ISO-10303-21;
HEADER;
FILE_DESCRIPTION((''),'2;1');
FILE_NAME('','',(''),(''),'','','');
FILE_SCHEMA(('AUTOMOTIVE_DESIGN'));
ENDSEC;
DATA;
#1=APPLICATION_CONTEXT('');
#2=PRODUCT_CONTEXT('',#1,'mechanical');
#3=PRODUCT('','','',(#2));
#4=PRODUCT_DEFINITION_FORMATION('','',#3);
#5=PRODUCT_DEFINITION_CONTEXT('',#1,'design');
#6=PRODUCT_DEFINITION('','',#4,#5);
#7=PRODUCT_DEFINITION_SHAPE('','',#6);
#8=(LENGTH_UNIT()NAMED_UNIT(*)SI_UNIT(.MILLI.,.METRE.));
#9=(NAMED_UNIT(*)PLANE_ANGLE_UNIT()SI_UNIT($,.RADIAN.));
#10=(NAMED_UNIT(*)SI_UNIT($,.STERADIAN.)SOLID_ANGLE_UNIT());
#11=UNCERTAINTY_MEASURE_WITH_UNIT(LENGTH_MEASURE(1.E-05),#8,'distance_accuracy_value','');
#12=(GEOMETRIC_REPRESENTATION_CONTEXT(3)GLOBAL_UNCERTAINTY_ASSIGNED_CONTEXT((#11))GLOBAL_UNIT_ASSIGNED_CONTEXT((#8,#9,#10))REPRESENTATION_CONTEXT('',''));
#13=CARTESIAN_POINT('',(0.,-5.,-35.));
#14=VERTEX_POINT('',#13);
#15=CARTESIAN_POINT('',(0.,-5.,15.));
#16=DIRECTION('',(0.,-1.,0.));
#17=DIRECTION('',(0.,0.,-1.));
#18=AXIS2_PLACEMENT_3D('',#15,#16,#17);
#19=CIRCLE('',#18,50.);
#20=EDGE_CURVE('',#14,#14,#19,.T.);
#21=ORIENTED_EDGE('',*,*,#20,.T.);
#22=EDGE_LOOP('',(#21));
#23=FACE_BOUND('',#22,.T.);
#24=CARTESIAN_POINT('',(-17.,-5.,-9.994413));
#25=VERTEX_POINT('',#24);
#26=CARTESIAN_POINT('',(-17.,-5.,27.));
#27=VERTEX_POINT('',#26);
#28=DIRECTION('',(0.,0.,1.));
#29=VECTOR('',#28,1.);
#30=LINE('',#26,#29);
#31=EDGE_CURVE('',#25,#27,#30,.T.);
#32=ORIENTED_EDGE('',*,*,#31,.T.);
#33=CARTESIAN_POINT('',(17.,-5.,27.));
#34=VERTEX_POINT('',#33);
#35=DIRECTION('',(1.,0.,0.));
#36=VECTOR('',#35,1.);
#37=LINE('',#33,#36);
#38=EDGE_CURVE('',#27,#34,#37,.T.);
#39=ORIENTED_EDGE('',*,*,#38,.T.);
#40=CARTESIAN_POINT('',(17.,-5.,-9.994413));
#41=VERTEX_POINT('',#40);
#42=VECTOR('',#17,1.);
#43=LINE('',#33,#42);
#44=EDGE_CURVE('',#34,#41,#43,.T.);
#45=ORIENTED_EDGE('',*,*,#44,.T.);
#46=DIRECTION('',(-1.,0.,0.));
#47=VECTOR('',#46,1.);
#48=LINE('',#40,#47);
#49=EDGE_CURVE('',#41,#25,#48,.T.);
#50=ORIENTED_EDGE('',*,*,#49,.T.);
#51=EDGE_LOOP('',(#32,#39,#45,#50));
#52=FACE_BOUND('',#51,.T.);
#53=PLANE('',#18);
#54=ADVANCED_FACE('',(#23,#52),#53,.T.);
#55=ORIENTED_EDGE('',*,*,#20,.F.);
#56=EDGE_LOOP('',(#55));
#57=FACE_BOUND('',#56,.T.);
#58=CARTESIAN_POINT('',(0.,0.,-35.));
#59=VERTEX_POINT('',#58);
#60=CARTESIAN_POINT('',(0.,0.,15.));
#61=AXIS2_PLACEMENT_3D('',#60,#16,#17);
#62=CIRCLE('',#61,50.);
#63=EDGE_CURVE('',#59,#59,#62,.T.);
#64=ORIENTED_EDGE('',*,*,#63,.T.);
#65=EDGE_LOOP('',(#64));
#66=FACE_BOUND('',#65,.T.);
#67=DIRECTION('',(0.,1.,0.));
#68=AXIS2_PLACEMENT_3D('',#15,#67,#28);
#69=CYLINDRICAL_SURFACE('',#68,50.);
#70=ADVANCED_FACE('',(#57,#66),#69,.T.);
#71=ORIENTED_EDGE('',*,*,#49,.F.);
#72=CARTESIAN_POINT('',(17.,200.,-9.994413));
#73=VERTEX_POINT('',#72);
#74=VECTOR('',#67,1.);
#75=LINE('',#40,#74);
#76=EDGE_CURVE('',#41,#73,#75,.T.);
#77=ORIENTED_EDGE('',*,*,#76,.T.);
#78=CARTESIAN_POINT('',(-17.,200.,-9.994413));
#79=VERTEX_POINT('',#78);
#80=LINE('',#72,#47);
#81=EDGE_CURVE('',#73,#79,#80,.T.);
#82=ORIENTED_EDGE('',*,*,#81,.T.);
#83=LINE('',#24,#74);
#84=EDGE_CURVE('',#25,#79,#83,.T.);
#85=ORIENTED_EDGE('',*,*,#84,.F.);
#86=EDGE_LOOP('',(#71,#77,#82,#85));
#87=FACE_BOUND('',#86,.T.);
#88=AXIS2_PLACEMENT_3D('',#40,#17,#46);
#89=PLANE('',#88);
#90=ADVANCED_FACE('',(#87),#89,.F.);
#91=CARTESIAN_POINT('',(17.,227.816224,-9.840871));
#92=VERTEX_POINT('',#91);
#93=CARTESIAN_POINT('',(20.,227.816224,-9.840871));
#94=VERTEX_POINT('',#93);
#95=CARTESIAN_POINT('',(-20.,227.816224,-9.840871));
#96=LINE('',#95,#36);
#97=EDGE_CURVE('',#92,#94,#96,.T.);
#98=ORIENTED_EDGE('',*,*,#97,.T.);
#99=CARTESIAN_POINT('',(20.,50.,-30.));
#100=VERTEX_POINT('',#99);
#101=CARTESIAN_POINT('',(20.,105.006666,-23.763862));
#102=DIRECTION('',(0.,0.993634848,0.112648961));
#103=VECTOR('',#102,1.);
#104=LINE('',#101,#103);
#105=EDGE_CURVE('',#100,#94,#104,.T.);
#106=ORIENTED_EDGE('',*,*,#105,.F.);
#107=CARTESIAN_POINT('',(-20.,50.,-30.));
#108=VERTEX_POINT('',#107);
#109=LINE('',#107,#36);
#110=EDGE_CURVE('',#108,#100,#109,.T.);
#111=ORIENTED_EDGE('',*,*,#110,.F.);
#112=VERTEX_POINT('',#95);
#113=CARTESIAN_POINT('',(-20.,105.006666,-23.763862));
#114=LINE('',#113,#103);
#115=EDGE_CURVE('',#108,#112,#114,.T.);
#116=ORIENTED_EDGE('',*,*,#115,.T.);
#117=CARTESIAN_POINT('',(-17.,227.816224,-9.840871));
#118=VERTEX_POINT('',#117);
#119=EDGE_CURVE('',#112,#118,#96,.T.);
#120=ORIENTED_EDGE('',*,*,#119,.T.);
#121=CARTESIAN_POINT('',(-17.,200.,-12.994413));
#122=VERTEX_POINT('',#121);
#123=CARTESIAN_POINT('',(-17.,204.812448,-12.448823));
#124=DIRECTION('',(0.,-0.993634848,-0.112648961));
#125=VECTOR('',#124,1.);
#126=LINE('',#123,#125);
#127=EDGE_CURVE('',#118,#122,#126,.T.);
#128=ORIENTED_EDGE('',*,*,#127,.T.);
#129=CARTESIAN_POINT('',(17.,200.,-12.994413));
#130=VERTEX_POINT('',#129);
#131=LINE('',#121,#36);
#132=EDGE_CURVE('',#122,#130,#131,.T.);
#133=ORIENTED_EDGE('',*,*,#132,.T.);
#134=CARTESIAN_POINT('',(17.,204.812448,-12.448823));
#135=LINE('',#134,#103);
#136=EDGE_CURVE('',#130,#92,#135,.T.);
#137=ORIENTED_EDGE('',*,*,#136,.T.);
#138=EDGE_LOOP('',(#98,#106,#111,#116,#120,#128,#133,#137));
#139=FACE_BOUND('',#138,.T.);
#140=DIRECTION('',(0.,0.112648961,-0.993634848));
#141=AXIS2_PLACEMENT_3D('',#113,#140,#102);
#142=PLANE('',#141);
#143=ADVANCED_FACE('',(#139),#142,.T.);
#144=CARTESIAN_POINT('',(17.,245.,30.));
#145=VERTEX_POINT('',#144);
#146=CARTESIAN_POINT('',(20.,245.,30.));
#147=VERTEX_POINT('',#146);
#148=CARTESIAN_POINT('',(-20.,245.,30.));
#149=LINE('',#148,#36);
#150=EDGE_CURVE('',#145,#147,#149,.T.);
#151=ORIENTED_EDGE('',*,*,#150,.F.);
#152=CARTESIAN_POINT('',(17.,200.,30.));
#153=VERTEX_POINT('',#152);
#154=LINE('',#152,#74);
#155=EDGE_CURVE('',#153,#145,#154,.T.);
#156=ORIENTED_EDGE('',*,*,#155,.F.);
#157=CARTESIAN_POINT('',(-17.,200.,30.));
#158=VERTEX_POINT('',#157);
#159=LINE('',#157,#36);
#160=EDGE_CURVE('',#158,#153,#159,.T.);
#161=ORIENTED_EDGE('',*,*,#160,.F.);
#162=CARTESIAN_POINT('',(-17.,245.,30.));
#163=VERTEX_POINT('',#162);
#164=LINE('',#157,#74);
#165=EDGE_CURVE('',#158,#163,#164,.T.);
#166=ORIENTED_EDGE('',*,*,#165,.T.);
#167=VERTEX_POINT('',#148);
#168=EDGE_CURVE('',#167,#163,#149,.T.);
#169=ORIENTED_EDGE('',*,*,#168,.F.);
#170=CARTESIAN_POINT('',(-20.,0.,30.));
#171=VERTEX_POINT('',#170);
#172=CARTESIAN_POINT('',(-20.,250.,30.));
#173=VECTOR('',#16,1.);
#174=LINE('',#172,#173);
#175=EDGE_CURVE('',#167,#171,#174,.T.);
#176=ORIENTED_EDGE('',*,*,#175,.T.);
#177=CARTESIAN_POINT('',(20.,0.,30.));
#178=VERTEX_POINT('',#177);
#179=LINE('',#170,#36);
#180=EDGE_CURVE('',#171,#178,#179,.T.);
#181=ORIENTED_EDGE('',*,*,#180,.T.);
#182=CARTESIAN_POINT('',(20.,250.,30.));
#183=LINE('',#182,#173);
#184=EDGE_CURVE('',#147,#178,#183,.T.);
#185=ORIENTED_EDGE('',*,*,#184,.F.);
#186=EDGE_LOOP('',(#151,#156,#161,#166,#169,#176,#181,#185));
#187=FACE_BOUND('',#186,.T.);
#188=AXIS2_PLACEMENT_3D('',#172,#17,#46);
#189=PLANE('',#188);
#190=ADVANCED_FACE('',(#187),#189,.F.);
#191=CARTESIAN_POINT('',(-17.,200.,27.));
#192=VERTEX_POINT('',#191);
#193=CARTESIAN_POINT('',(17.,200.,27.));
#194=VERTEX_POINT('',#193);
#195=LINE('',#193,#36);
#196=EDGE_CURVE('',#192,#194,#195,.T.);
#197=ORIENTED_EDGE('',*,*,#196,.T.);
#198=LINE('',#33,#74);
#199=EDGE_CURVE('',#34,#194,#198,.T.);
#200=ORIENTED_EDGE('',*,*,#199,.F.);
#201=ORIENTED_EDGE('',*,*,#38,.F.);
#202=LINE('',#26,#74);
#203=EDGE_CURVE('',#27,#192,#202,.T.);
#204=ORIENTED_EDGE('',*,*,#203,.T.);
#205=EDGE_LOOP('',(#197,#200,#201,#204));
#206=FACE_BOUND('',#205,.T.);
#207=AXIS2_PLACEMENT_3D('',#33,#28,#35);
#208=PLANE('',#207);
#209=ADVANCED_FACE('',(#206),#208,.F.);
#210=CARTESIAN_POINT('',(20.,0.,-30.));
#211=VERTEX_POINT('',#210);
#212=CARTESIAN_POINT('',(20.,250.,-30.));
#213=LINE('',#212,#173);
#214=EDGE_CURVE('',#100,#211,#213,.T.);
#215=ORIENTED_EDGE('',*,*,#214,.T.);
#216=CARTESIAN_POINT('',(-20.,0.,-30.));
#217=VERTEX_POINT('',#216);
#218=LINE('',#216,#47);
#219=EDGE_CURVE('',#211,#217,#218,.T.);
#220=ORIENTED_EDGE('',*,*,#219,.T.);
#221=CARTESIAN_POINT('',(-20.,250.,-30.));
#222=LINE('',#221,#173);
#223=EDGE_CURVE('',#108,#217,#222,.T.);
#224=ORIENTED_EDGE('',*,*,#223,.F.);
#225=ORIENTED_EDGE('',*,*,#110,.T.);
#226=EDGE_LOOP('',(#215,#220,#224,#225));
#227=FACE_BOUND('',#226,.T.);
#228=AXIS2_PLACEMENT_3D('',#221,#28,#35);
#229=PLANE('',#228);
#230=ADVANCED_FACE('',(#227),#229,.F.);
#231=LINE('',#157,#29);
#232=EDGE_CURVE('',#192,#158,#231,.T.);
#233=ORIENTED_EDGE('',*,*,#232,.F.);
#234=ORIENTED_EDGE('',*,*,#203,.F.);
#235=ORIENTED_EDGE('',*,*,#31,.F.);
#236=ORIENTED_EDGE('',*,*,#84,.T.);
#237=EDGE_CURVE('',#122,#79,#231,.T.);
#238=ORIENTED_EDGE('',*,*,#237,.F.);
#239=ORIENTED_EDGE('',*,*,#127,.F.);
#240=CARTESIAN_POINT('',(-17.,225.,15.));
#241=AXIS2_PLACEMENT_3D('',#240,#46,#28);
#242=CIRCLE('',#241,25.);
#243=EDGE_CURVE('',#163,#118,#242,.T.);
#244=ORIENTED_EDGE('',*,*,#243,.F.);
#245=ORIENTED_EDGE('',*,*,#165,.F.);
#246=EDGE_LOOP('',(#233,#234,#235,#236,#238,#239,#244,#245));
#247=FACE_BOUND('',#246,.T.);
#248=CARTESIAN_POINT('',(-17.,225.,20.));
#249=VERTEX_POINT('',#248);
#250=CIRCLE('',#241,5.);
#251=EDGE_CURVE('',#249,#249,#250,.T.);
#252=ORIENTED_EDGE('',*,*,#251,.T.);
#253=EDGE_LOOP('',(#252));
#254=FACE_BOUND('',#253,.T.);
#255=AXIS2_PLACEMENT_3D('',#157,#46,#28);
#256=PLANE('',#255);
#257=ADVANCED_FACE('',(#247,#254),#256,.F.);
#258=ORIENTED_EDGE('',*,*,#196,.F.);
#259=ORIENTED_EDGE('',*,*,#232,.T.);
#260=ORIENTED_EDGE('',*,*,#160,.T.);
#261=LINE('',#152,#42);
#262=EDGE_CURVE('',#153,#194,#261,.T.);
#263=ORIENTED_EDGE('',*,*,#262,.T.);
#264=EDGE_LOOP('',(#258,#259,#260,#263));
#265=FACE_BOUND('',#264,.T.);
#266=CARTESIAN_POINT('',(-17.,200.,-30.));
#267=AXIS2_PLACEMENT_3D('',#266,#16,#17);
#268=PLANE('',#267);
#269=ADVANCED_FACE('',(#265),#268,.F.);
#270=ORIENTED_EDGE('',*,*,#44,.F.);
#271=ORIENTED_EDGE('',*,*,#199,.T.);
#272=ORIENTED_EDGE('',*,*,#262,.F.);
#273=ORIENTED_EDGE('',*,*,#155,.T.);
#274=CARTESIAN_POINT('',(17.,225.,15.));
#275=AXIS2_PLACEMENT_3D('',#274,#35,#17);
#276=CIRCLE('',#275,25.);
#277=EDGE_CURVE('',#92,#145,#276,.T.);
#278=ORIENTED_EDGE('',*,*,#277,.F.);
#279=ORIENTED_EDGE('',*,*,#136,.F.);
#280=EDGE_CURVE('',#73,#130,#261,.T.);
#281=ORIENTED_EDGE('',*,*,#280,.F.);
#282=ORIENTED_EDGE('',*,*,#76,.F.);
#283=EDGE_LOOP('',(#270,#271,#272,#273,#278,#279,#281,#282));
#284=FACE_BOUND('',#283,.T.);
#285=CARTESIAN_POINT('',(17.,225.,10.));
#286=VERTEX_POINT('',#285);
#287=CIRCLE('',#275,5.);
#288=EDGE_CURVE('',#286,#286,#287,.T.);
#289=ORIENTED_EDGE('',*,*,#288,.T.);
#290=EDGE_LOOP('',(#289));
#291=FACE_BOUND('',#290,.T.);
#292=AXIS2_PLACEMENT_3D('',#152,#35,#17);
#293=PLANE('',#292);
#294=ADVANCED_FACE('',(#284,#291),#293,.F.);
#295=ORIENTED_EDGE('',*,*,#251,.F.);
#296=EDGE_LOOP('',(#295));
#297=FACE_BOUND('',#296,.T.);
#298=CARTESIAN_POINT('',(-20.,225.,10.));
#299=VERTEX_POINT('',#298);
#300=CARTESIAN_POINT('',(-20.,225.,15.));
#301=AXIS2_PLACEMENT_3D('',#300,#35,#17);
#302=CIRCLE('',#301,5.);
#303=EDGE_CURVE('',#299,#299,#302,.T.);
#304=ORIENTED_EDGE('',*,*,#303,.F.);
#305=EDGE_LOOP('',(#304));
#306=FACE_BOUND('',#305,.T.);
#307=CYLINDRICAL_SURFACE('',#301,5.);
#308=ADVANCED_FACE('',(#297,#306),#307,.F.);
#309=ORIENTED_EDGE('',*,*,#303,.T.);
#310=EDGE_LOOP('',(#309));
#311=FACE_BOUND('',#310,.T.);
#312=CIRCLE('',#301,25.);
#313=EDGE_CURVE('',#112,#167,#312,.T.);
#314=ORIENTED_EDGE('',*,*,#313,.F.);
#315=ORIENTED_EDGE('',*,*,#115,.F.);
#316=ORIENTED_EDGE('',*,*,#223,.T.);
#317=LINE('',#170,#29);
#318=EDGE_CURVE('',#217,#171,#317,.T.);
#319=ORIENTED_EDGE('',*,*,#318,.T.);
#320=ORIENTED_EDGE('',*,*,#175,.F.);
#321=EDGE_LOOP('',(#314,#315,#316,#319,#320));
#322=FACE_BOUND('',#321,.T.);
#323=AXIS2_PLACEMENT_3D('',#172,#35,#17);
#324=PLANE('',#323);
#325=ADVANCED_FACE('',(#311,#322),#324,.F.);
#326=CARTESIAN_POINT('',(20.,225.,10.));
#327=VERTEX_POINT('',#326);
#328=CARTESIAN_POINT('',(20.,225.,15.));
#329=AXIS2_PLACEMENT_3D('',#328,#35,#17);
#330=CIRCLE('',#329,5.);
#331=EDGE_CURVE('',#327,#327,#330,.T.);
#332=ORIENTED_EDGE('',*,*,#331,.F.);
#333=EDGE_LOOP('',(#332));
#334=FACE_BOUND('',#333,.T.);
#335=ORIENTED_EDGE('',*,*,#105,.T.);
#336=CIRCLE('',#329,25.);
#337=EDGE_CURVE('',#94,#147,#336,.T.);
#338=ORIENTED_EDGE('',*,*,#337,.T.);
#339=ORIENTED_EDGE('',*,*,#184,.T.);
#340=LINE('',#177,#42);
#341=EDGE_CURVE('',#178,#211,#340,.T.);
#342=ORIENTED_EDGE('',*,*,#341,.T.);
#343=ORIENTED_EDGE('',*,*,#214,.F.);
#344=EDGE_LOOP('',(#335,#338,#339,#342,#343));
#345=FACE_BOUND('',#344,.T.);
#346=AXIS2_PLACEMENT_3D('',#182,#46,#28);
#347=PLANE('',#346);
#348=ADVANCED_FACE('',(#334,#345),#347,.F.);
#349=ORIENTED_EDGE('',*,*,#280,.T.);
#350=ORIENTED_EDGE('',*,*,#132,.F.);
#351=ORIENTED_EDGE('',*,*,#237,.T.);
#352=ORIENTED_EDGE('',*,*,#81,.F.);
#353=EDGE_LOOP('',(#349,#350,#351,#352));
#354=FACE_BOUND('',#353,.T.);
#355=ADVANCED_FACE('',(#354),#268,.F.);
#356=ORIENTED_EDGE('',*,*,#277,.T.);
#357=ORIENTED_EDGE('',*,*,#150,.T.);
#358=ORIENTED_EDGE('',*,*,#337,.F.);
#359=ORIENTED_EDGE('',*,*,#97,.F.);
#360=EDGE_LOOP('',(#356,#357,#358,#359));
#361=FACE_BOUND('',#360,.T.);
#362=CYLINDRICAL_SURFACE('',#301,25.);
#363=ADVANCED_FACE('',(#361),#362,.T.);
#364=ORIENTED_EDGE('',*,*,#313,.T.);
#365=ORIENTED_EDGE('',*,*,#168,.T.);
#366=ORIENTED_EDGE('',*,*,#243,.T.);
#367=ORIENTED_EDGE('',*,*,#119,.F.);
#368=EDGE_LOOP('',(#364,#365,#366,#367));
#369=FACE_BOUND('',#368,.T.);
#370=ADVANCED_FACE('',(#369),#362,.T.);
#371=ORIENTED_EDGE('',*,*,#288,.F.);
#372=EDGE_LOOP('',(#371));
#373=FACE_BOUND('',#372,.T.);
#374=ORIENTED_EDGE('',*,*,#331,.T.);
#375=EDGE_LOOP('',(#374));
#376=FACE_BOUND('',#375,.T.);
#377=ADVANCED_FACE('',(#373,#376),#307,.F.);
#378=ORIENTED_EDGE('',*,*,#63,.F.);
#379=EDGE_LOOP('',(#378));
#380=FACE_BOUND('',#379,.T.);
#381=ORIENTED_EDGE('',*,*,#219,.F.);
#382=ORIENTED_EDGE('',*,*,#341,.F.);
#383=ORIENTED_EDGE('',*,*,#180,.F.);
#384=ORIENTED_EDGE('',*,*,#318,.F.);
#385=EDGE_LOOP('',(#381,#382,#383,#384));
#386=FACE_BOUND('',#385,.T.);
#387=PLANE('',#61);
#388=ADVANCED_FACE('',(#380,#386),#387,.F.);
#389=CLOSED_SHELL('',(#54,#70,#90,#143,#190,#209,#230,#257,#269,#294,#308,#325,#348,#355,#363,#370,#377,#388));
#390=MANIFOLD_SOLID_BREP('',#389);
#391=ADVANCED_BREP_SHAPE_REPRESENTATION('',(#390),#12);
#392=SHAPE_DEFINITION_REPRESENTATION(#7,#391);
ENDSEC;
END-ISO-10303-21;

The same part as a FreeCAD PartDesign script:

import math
import FreeCAD as App
import Part
import Sketcher

V = App.Vector
Q = App.Units.Quantity


def add_polygon(sketch, points):
    """Adds a closed chain of lines whose ends are joined by coincident constraints."""
    first, n = sketch.GeometryCount, len(points)
    for a, b in zip(points, points[1:] + points[:1]):
        sketch.addGeometry(Part.LineSegment(App.Vector(*a, 0), App.Vector(*b, 0)), False)
    for i in range(n):
        sketch.addConstraint(Sketcher.Constraint("Coincident", first + i, 2, first + (i + 1) % n, 1))

doc = App.newDocument("Part")
params = doc.addObject("Spreadsheet::Sheet", "Params")
for row, (alias, value) in enumerate([
    ("sketch1_width", "40 mm"),
    ("sketch1_height", "60 mm"),
    ("pad1_length", "250 mm"),
    ("sketch2_width", "34 mm"),
    ("sketch2_height", "60 mm"),
    ("pocket1_length", "50 mm"),
    ("sketch3_diameter", "10 mm"),
    ("sketch4_radius", "25 mm"),
    ("sketch4_width", "200 mm"),
    ("sketch4_width2", "5 mm"),
    ("sketch4_height", "45 mm"),
    ("sketch5_diameter", "100 mm"),
    ("pad2_length", "5 mm"),
    ("sketch6_width", "34 mm"),
], start=1):
    params.set(f"A{row}", alias)
    params.set(f"B{row}", "=" + value)
    params.setAlias(f"B{row}", alias)

body = doc.addObject("PartDesign::Body", "Body")

sketch1 = body.newObject("Sketcher::SketchObject", "Sketch")
sketch1.AttachmentSupport = (doc.getObject("XZ_Plane"), [""])
sketch1.MapMode = "FlatFace"
add_polygon(sketch1, [(-20, -30), (-20, 30), (20, 30), (20, -30)])
sketch1.addConstraint([
    Sketcher.Constraint("Vertical", 0),
    Sketcher.Constraint("Horizontal", 1),
    Sketcher.Constraint("Vertical", 2),
    Sketcher.Constraint("Horizontal", 3),
    Sketcher.Constraint("Symmetric", 0, 2, 2, 2, -1, 1),
    Sketcher.Constraint("DistanceX", 1, 1, 1, 2, Q("40 mm")),
    Sketcher.Constraint("DistanceY", 0, 1, 0, 2, Q("60 mm")),
])
sketch1.setExpression("Constraints[9]", "Params.sketch1_width")
sketch1.setExpression("Constraints[10]", "Params.sketch1_height")
pad1 = body.newObject("PartDesign::Pad", "Pad")
pad1.Profile = sketch1
pad1.setExpression("Length", "Params.pad1_length")
pad1.Reversed = True

sketch2 = body.newObject("Sketcher::SketchObject", "Sketch001")
sketch2.AttachmentSupport = (doc.getObject("XZ_Plane"), [""])
sketch2.MapMode = "FlatFace"
sketch2.AttachmentOffset = App.Placement(V(0, 0, -250), App.Rotation())
add_polygon(sketch2, [(-17, -30), (-17, 30), (17, 30), (17, -30)])
sketch2.addConstraint([
    Sketcher.Constraint("Vertical", 0),
    Sketcher.Constraint("Horizontal", 1),
    Sketcher.Constraint("Vertical", 2),
    Sketcher.Constraint("Horizontal", 3),
    Sketcher.Constraint("Symmetric", 0, 2, 2, 2, -1, 1),
    Sketcher.Constraint("DistanceX", 1, 1, 1, 2, Q("34 mm")),
    Sketcher.Constraint("DistanceY", 0, 1, 0, 2, Q("60 mm")),
])
sketch2.setExpression("Constraints[9]", "Params.sketch2_width")
sketch2.setExpression("Constraints[10]", "Params.sketch2_height")
pocket1 = body.newObject("PartDesign::Pocket", "Pocket")
pocket1.Profile = sketch2
pocket1.setExpression("Length", "Params.pocket1_length")
pocket1.Reversed = True

sketch3 = body.newObject("Sketcher::SketchObject", "Sketch002")
sketch3.AttachmentSupport = (doc.getObject("YZ_Plane"), [""])
sketch3.MapMode = "FlatFace"
sketch3.AttachmentOffset = App.Placement(V(0, 0, 20), App.Rotation())
sketch3.addGeometry(Part.Circle(V(225, 15, 0), V(0, 0, 1), 5), False)
sketch3.addConstraint([
    Sketcher.Constraint("Diameter", 0, Q("10 mm")),
    Sketcher.Constraint("DistanceX", -1, 1, 0, 3, Q("225 mm")),
    Sketcher.Constraint("DistanceY", -1, 1, 0, 3, Q("15 mm")),
])
sketch3.setExpression("Constraints[0]", "Params.sketch3_diameter")
pocket2 = body.newObject("PartDesign::Pocket", "Pocket001")
pocket2.Profile = sketch3
pocket2.Type = "ThroughAll"

sketch4 = body.newObject("Sketcher::SketchObject", "Sketch003")
sketch4.AttachmentSupport = (doc.getObject("YZ_Plane"), [""])
sketch4.MapMode = "FlatFace"
sketch4.AttachmentOffset = App.Placement(V(0, 0, 20), App.Rotation())
sketch4.addGeometry([
    Part.LineSegment(V(228, -10, 0), V(50, -30, 0)),
    Part.LineSegment(V(50, -30, 0), V(250, -30, 0)),
    Part.LineSegment(V(250, -30, 0), V(250, 15, 0)),
    Part.ArcOfCircle(Part.Circle(V(225, 15, 0), V(0, 0, 1), 25), math.radians(-84), math.radians(0)),
    Part.ArcOfCircle(Part.Circle(V(225, 15, 0), V(0, 0, 1), 25), math.radians(0), math.radians(37)),
    Part.LineSegment(V(250, 15, 0), V(250, 30, 0)),
    Part.LineSegment(V(250, 30, 0), V(245, 30, 0)),
], False)
sketch4.addConstraint([
    Sketcher.Constraint("Coincident", 0, 2, 1, 1),
    Sketcher.Constraint("Coincident", 1, 2, 2, 1),
    Sketcher.Constraint("Tangent", 2, 2, 3, 2),
    Sketcher.Constraint("Tangent", 3, 1, 0, 1),
    Sketcher.Constraint("Tangent", 4, 1, 5, 1),
    Sketcher.Constraint("Coincident", 5, 2, 6, 1),
    Sketcher.Constraint("Coincident", 6, 2, 4, 2),
    Sketcher.Constraint("Horizontal", 1),
    Sketcher.Constraint("Vertical", 2),
    Sketcher.Constraint("Vertical", 5),
    Sketcher.Constraint("Horizontal", 6),
    Sketcher.Constraint("Coincident", 4, 3, 3, 3),
    Sketcher.Constraint("Equal", 3, 4),
    Sketcher.Constraint("Radius", 3, Q("25 mm")),
    Sketcher.Constraint("DistanceX", 1, 1, 1, 2, Q("200 mm")),
    Sketcher.Constraint("DistanceX", 6, 2, 6, 1, Q("5 mm")),
    Sketcher.Constraint("DistanceY", 2, 1, 2, 2, Q("45 mm")),
    Sketcher.Constraint("DistanceX", -1, 1, 3, 3, Q("225 mm")),
    Sketcher.Constraint("DistanceY", -1, 1, 3, 3, Q("15 mm")),
])
sketch4.setExpression("Constraints[13]", "Params.sketch4_radius")
sketch4.setExpression("Constraints[14]", "Params.sketch4_width")
sketch4.setExpression("Constraints[15]", "Params.sketch4_width2")
sketch4.setExpression("Constraints[16]", "Params.sketch4_height")
pocket3 = body.newObject("PartDesign::Pocket", "Pocket002")
pocket3.Profile = sketch4
pocket3.Type = "ThroughAll"

sketch5 = body.newObject("Sketcher::SketchObject", "Sketch004")
sketch5.AttachmentSupport = (doc.getObject("XZ_Plane"), [""])
sketch5.MapMode = "FlatFace"
sketch5.addGeometry(Part.Circle(V(0, 15, 0), V(0, 0, 1), 50), False)
sketch5.addConstraint([
    Sketcher.Constraint("PointOnObject", 0, 3, -2),
    Sketcher.Constraint("Diameter", 0, Q("100 mm")),
    Sketcher.Constraint("DistanceY", -1, 1, 0, 3, Q("15 mm")),
])
sketch5.setExpression("Constraints[1]", "Params.sketch5_diameter")
pad2 = body.newObject("PartDesign::Pad", "Pad001")
pad2.Profile = sketch5
pad2.setExpression("Length", "Params.pad2_length")

sketch6 = body.newObject("Sketcher::SketchObject", "Sketch005")
sketch6.AttachmentSupport = (doc.getObject("XZ_Plane"), [""])
sketch6.MapMode = "FlatFace"
sketch6.AttachmentOffset = App.Placement(V(0, 0, -200), App.Rotation())
add_polygon(sketch6, [(-17, -10), (-17, 27), (17, 27), (17, -10)])
sketch6.addConstraint([
    Sketcher.Constraint("Vertical", 0),
    Sketcher.Constraint("Horizontal", 1),
    Sketcher.Constraint("Vertical", 2),
    Sketcher.Constraint("Horizontal", 3),
    Sketcher.Constraint("DistanceX", 1, 1, 1, 2, Q("34 mm")),
    Sketcher.Constraint("DistanceX", 0, 2, -1, 1, Q("17 mm")),
    Sketcher.Constraint("DistanceY", -1, 1, 0, 2, Q("27 mm")),
    Sketcher.Constraint("DistanceY", 0, 1, 0, 2, Q("36.994413 mm")),
])
sketch6.setExpression("Constraints[8]", "Params.sketch6_width")
pocket4 = body.newObject("PartDesign::Pocket", "Pocket003")
pocket4.Profile = sketch6
pocket4.Type = "ThroughAll"
pocket4.Reversed = True

doc.recompute()
